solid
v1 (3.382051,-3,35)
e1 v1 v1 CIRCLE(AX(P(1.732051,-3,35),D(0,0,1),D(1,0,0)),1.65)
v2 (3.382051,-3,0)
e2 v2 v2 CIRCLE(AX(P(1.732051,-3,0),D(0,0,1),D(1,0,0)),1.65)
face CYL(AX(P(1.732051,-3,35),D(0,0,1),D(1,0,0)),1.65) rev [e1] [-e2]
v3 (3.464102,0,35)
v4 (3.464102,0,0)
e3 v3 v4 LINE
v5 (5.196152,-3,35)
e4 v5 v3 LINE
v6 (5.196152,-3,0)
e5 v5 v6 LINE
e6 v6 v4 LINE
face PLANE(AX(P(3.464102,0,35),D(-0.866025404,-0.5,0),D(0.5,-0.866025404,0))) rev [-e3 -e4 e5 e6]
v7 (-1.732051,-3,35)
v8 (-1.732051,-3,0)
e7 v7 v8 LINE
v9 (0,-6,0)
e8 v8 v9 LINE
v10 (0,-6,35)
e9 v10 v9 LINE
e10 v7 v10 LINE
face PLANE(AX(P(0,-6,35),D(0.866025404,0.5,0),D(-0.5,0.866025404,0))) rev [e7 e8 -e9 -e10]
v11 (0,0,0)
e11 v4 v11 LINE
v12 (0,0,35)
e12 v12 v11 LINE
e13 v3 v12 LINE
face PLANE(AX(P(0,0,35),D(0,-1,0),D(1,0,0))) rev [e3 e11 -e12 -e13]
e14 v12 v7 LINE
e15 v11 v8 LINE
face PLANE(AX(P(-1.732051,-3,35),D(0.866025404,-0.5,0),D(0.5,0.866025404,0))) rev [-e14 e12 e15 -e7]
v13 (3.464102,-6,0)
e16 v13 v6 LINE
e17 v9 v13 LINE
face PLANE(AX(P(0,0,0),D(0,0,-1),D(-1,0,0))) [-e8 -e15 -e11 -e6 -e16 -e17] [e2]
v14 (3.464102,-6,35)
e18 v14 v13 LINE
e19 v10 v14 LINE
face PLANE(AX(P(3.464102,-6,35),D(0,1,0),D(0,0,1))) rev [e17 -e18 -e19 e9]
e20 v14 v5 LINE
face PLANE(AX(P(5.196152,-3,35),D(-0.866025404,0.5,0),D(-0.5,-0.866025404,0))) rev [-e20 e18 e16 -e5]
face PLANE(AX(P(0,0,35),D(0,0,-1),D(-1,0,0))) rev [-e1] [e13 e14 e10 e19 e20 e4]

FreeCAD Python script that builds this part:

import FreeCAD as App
import Part
import Sketcher
Q = App.Units.Quantity

doc = App.newDocument("Part")
body = doc.addObject("PartDesign::Body", "Body")

# Sketch on XY plane
sketch1 = body.newObject("Sketcher::SketchObject", "Sketch")
sketch1.AttachmentSupport = (doc.getObject("XY_Plane"), [""])
sketch1.MapMode = "FlatFace"
sketch1.addGeometry([
    Part.LineSegment(App.Vector(3.5, 0, 0), App.Vector(0, 0, 0)),  # 0
    Part.LineSegment(App.Vector(0, 0, 0), App.Vector(-1.7, -3, 0)),  # 1
    Part.LineSegment(App.Vector(-1.7, -3, 0), App.Vector(0, -6, 0)),  # 2
    Part.LineSegment(App.Vector(0, -6, 0), App.Vector(3.5, -6, 0)),  # 3
    Part.LineSegment(App.Vector(3.5, -6, 0), App.Vector(5.2, -3, 0)),  # 4
    Part.LineSegment(App.Vector(5.2, -3, 0), App.Vector(3.5, 0, 0)),  # 5
], False)
sketch1.addConstraint([
    Sketcher.Constraint("Coincident", 0, 2, 1, 1),
    Sketcher.Constraint("Coincident", 1, 2, 2, 1),
    Sketcher.Constraint("Coincident", 2, 2, 3, 1),
    Sketcher.Constraint("Coincident", 3, 2, 4, 1),
    Sketcher.Constraint("Coincident", 4, 2, 5, 1),
    Sketcher.Constraint("Coincident", 5, 2, 0, 1),
    Sketcher.Constraint("Horizontal", 0),
    Sketcher.Constraint("Horizontal", 3),
    Sketcher.Constraint("Coincident", 0, 2, -1, 1),
    Sketcher.Constraint("PointOnObject", 2, 2, -2),
    Sketcher.Constraint("Parallel", 1, 4),
    Sketcher.Constraint("Parallel", 2, 5),
    Sketcher.Constraint("Horizontal", 1, 2, 4, 2),
    Sketcher.Constraint("Vertical", 3, 2, 5, 2),
    Sketcher.Constraint("Angle", 1, Q("-120 deg")),
    Sketcher.Constraint("DistanceY", 1, 2, -1, 1, Q("3 mm")),
    Sketcher.Constraint("DistanceX", 0, 2, 0, 1, Q("3.464102 mm")),
])
pad1 = body.newObject("PartDesign::Pad", "Pad")
pad1.Profile = sketch1
pad1.Length = 35

# Sketch on XY plane
sketch2 = body.newObject("Sketcher::SketchObject", "Sketch001")
sketch2.AttachmentSupport = (doc.getObject("XY_Plane"), [""])
sketch2.MapMode = "FlatFace"
sketch2.AttachmentOffset = App.Placement(App.Vector(0, 0, 35), App.Rotation())
sketch2.addGeometry(Part.Circle(App.Vector(1.7, -3, 0), App.Vector(0, 0, 1), 1.6), False)
sketch2.addConstraint([
    Sketcher.Constraint("Diameter", 0, Q("3.3 mm")),
    Sketcher.Constraint("DistanceY", 0, 3, -1, 1, Q("3 mm")),
    Sketcher.Constraint("DistanceX", -1, 1, 0, 3, Q("1.732051 mm")),
])
doc.recompute()
hole = body.newObject("PartDesign::Hole", "Hole")
hole.Profile = sketch2
hole.ThreadType = "None"
hole.Diameter = 3.3
hole.DepthType = "ThroughAll"

doc.recompute()
